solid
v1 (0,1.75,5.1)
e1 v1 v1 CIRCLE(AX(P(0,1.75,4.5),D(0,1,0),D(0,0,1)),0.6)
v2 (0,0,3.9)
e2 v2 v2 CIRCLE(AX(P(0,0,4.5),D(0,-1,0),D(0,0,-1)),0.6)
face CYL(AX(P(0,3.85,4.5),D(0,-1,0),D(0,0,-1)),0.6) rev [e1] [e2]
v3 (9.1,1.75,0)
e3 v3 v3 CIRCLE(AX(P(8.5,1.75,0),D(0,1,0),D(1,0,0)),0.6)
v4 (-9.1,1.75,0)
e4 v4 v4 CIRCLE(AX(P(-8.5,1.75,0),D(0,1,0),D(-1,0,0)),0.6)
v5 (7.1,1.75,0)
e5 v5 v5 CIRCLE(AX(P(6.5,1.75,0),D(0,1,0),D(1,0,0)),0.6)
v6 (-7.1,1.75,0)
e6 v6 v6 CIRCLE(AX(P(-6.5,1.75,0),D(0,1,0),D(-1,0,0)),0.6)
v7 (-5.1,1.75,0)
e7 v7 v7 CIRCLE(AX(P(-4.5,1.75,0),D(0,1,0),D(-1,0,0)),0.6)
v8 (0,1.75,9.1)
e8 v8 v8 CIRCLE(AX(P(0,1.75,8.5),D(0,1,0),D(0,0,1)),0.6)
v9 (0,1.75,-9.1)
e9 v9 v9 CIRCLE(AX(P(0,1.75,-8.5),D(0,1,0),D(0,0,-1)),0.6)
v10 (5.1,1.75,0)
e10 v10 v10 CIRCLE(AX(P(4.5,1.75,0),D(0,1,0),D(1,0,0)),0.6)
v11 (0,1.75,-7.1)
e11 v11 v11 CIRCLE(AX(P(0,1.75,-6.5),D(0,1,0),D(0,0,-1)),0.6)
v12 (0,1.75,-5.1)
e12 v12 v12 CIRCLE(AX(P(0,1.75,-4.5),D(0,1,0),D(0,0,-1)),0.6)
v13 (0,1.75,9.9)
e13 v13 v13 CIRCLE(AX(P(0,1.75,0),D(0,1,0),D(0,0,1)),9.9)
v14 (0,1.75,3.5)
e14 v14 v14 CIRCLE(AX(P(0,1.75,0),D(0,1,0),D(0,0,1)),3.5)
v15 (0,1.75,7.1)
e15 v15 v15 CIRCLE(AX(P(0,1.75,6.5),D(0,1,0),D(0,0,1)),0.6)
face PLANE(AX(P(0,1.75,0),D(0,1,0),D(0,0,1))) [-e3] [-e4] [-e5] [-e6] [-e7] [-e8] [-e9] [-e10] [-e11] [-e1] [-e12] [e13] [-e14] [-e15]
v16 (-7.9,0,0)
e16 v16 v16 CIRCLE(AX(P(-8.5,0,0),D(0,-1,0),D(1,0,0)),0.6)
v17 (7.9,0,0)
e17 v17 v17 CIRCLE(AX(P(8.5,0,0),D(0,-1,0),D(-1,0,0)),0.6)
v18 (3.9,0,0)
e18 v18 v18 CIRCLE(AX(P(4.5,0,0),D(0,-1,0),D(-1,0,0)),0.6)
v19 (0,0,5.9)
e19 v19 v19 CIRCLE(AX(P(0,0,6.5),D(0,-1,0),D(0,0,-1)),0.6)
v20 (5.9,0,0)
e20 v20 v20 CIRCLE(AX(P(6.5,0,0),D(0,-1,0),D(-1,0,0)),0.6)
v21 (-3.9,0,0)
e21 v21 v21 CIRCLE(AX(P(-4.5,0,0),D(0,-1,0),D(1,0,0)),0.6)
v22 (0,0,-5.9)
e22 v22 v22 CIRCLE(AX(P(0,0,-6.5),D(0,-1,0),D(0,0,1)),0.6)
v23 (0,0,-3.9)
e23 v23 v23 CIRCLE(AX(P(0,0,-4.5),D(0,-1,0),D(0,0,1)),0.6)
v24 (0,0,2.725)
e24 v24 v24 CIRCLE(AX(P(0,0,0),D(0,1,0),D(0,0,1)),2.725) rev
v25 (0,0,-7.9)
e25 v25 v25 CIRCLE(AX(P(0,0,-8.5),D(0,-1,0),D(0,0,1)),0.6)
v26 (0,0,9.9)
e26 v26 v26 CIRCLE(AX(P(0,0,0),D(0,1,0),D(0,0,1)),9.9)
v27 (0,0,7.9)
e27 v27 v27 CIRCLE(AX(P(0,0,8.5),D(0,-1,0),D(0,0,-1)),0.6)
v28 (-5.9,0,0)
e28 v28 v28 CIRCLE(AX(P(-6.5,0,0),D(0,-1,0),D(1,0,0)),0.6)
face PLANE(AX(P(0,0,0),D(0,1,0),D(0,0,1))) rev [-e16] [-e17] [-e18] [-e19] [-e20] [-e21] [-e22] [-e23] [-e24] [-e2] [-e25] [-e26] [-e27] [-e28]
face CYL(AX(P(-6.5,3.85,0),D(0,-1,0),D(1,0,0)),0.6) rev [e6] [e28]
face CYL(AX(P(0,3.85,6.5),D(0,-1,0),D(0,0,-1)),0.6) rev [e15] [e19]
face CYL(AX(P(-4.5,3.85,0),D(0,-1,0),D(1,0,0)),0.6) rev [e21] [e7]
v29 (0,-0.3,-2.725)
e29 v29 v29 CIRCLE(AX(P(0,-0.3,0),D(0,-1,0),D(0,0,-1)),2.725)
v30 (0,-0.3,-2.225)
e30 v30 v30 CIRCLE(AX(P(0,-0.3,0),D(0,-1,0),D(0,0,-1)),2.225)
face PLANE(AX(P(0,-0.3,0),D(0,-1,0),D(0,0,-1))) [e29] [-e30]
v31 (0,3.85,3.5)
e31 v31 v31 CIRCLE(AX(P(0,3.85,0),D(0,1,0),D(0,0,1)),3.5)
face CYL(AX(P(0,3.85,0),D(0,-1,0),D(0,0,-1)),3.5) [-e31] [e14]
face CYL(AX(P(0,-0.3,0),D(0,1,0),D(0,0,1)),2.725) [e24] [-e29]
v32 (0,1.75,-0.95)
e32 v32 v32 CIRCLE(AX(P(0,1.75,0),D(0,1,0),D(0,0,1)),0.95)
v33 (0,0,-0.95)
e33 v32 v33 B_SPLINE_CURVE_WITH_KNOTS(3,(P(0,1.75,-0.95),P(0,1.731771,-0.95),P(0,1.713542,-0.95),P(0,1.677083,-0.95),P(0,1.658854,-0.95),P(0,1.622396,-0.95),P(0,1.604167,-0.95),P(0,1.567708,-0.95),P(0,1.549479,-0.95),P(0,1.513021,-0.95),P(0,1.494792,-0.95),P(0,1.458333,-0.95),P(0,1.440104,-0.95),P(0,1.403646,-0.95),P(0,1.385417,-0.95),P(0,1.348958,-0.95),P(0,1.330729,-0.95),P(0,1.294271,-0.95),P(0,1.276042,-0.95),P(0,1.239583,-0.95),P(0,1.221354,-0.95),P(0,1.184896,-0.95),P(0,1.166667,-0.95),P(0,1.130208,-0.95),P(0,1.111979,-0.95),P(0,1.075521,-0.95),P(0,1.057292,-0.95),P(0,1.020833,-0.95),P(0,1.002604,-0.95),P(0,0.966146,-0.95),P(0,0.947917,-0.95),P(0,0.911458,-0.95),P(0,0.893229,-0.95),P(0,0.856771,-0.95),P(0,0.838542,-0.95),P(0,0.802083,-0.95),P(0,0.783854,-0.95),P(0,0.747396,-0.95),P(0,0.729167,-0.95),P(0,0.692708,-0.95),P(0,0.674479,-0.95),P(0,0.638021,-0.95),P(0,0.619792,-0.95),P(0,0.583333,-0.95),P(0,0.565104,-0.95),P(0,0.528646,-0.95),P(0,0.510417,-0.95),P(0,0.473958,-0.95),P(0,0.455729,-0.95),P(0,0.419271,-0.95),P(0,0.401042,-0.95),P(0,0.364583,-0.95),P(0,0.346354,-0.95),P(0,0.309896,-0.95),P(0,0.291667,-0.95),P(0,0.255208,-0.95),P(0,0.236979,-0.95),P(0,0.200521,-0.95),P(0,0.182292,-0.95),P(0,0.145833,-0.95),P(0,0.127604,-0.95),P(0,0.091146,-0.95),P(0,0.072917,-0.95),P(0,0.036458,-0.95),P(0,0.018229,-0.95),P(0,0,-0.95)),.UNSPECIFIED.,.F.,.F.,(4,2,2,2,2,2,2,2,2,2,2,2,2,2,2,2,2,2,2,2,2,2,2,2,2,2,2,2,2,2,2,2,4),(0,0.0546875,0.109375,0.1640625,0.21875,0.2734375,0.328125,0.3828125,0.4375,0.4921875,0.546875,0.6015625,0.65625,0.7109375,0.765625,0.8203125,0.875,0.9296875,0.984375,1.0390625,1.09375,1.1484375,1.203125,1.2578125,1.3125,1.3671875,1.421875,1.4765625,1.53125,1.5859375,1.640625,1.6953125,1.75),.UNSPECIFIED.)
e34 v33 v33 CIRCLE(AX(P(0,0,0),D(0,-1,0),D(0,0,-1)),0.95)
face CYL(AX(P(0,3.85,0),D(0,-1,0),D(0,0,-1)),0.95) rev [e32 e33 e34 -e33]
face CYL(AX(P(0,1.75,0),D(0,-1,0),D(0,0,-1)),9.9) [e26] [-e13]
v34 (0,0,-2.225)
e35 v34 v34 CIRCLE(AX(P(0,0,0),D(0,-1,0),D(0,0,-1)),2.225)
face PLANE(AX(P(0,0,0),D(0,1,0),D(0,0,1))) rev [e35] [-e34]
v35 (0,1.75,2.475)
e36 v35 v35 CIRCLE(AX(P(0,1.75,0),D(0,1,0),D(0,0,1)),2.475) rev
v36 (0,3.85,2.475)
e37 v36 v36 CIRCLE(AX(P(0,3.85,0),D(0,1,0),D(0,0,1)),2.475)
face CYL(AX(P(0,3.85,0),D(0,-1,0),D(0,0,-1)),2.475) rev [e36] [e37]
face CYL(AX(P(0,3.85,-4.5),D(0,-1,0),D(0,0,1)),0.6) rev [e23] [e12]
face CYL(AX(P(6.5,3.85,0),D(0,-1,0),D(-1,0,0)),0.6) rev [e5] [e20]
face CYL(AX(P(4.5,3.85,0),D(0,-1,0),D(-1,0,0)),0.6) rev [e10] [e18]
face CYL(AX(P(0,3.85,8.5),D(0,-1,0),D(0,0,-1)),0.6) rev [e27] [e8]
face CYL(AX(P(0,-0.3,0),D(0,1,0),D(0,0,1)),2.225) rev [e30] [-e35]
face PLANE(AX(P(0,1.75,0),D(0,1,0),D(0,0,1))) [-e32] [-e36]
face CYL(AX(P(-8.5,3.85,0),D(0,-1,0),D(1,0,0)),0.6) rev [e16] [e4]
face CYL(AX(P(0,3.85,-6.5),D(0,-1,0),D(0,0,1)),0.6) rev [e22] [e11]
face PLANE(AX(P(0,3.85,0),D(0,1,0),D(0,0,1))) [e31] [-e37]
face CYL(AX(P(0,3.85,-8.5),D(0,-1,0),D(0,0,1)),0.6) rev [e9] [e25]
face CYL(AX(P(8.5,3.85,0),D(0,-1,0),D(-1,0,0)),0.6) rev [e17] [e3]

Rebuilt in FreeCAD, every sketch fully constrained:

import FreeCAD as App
import Part
import Sketcher
Q = App.Units.Quantity

doc = App.newDocument("Part")
body = doc.addObject("PartDesign::Body", "Body")

# Sketch on XZ plane
sketch1 = body.newObject("Sketcher::SketchObject", "Sketch")
sketch1.AttachmentSupport = (doc.getObject("XZ_Plane"), [""])
sketch1.MapMode = "FlatFace"
sketch1.addGeometry(Part.Circle(App.Vector(0, 0, 0), App.Vector(0, 0, 1), 10), False)
sketch1.addConstraint([
    Sketcher.Constraint("Coincident", 0, 3, -1, 1),
    Sketcher.Constraint("Diameter", 0, Q("19.8 mm")),
])
pad1 = body.newObject("PartDesign::Pad", "Pad")
pad1.Profile = sketch1
pad1.Length = 1.75
pad1.Reversed = True

# Sketch on XZ plane
sketch2 = body.newObject("Sketcher::SketchObject", "Sketch001")
sketch2.AttachmentSupport = (doc.getObject("XZ_Plane"), [""])
sketch2.MapMode = "FlatFace"
sketch2.AttachmentOffset = App.Placement(App.Vector(0, 0, -1.75), App.Rotation())
sketch2.addGeometry([
    Part.Circle(App.Vector(0, 0, 0), App.Vector(0, 0, 1), 3.5),
    Part.Circle(App.Vector(0, 0, 0), App.Vector(0, 0, 1), 2.5),
], False)
sketch2.addConstraint([
    Sketcher.Constraint("Coincident", 0, 3, -1, 1),
    Sketcher.Constraint("Coincident", 1, 3, -1, 1),
    Sketcher.Constraint("Diameter", 0, Q("7 mm")),
    Sketcher.Constraint("Diameter", 1, Q("4.95 mm")),
])
pad2 = body.newObject("PartDesign::Pad", "Pad001")
pad2.Profile = sketch2
pad2.Length = 2.1
pad2.Reversed = True

# Sketch on XZ plane
sketch3 = body.newObject("Sketcher::SketchObject", "Sketch002")
sketch3.AttachmentSupport = (doc.getObject("XZ_Plane"), [""])
sketch3.MapMode = "FlatFace"
sketch3.addGeometry([
    Part.Circle(App.Vector(0, 0, 0), App.Vector(0, 0, 1), 2.7),
    Part.Circle(App.Vector(0, 0, 0), App.Vector(0, 0, 1), 2.2),
], False)
sketch3.addConstraint([
    Sketcher.Constraint("Coincident", 0, 3, -1, 1),
    Sketcher.Constraint("Coincident", 1, 3, -1, 1),
    Sketcher.Constraint("Diameter", 0, Q("5.45 mm")),
    Sketcher.Constraint("Diameter", 1, Q("4.45 mm")),
])
pad3 = body.newObject("PartDesign::Pad", "Pad002")
pad3.Profile = sketch3
pad3.Length = 0.3

# Sketch on XZ plane
sketch4 = body.newObject("Sketcher::SketchObject", "Sketch003")
sketch4.AttachmentSupport = (doc.getObject("XZ_Plane"), [""])
sketch4.MapMode = "FlatFace"
sketch4.addGeometry(Part.Circle(App.Vector(0, 0, 0), App.Vector(0, 0, 1), 0.9), False)
sketch4.addConstraint([
    Sketcher.Constraint("Coincident", 0, 3, -1, 1),
    Sketcher.Constraint("Diameter", 0, Q("1.9 mm")),
])
pocket1 = body.newObject("PartDesign::Pocket", "Pocket")
pocket1.Profile = sketch4
pocket1.Type = "ThroughAll"

# Sketch on XZ plane
sketch5 = body.newObject("Sketcher::SketchObject", "Sketch004")
sketch5.AttachmentSupport = (doc.getObject("XZ_Plane"), [""])
sketch5.MapMode = "FlatFace"
sketch5.addGeometry([
    Part.Circle(App.Vector(0, 4.5, 0), App.Vector(0, 0, 1), 0.6),
    Part.Circle(App.Vector(0, 6.5, 0), App.Vector(0, 0, 1), 0.6),
    Part.Circle(App.Vector(0, 8.5, 0), App.Vector(0, 0, 1), 0.6),
], False)
sketch5.addConstraint([
    Sketcher.Constraint("Equal", 0, 1),
    Sketcher.Constraint("Equal", 1, 2),
    Sketcher.Constraint("PointOnObject", 0, 3, -2),
    Sketcher.Constraint("PointOnObject", 1, 3, -2),
    Sketcher.Constraint("PointOnObject", 2, 3, -2),
    Sketcher.Constraint("Diameter", 0, Q("1.2 mm")),
    Sketcher.Constraint("DistanceY", 0, 3, 1, 3, Q("2 mm")),
    Sketcher.Constraint("DistanceY", 1, 3, 2, 3, Q("2 mm")),
    Sketcher.Constraint("DistanceY", -1, 1, 0, 3, Q("4.5 mm")),
])
pocket2 = body.newObject("PartDesign::Pocket", "Pocket001")
pocket2.Profile = sketch5
pocket2.Type = "ThroughAll"
doc.recompute()

polarpattern = body.newObject("PartDesign::PolarPattern", "PolarPattern")
polarpattern.Originals = [pocket2]
polarpattern.Axis = (doc.getObject("Y_Axis"), [""])
polarpattern.Angle = 360
polarpattern.Occurrences = 4
body.Tip = polarpattern

doc.recompute()
